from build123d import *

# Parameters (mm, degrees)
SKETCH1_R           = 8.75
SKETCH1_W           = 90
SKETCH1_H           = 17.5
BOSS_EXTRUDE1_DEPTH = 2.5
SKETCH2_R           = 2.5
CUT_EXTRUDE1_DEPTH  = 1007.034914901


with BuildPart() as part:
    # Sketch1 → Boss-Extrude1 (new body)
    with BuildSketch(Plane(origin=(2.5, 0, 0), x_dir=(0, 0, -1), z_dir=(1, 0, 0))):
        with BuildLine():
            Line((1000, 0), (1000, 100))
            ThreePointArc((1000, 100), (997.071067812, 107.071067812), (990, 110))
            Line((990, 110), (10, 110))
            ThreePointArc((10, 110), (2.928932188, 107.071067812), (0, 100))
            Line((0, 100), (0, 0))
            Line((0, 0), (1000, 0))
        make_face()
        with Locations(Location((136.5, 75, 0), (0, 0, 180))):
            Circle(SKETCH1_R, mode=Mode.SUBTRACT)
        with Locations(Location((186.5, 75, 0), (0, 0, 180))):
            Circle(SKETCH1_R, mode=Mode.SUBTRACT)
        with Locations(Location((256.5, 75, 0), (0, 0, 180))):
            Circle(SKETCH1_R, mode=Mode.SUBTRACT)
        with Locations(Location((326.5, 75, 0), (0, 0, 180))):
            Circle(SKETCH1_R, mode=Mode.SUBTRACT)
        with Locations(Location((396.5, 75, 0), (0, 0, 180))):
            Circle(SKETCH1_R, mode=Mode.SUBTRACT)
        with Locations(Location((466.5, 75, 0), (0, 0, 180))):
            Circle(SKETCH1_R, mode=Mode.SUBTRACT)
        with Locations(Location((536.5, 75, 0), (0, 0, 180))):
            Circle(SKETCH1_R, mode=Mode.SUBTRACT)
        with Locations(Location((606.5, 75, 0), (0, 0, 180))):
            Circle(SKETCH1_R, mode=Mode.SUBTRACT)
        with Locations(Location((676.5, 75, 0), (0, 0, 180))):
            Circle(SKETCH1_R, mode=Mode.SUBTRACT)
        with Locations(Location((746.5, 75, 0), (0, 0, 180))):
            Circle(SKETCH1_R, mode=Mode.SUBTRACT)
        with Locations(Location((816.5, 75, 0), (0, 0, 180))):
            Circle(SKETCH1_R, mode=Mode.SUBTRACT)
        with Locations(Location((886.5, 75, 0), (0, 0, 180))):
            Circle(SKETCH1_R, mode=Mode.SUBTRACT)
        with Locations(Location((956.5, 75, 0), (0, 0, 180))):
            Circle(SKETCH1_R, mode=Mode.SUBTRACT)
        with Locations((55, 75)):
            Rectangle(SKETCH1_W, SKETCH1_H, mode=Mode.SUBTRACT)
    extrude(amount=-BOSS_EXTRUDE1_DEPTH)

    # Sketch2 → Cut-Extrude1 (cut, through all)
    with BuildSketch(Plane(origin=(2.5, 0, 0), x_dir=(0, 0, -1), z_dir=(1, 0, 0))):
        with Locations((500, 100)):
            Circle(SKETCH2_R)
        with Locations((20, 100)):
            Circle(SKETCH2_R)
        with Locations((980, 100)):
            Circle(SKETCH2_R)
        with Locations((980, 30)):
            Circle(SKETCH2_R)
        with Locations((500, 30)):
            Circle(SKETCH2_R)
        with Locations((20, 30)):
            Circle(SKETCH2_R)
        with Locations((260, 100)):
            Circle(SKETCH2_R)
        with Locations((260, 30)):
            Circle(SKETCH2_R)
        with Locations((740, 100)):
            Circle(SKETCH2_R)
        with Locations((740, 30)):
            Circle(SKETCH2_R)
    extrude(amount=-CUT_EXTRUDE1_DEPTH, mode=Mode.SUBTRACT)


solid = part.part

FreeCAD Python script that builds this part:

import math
import FreeCAD as App
import Part
import Sketcher

V = App.Vector

doc = App.newDocument("Part")
body = doc.addObject("PartDesign::Body", "Body")

# Sketch on YZ plane
sketch1 = doc.addObject("Sketcher::SketchObject", "Sketch")
body.addObject(sketch1)
sketch1.AttachmentSupport = (doc.YZ_Plane, [""])
sketch1.MapMode = "FlatFace"
sketch1.AttachmentOffset = App.Placement(V(0, 0, 2.5), App.Rotation())
sketch1.addGeometry(Part.LineSegment(V(0, -1000, 0), V(100, -1000, 0)), False)
sketch1.addGeometry(Part.ArcOfCircle(Part.Circle(V(100, -990, 0), V(0, 0, 1), 10), math.radians(-90), math.radians(0)), False)
sketch1.addGeometry(Part.LineSegment(V(110, -990, 0), V(110, -10, 0)), False)
sketch1.addGeometry(Part.ArcOfCircle(Part.Circle(V(100, -10, 0), V(0, 0, 1), 10), math.radians(0), math.radians(90)), False)
sketch1.addGeometry(Part.LineSegment(V(100, 0, 0), V(0, 0, 0)), False)
sketch1.addGeometry(Part.LineSegment(V(0, 0, 0), V(0, -1000, 0)), False)
sketch1.addGeometry(Part.LineSegment(V(66, -100, 0), V(66, -10, 0)), False)
sketch1.addGeometry(Part.LineSegment(V(66, -10, 0), V(84, -10, 0)), False)
sketch1.addGeometry(Part.LineSegment(V(84, -10, 0), V(84, -100, 0)), False)
sketch1.addGeometry(Part.LineSegment(V(84, -100, 0), V(66, -100, 0)), False)
sketch1.addGeometry(Part.Circle(V(75, -136, 0), V(0, 0, 1), 9), False)
sketch1.addGeometry(Part.Circle(V(75, -186, 0), V(0, 0, 1), 9), False)
sketch1.addGeometry(Part.Circle(V(75, -256, 0), V(0, 0, 1), 9), False)
sketch1.addGeometry(Part.Circle(V(75, -326, 0), V(0, 0, 1), 9), False)
sketch1.addGeometry(Part.Circle(V(75, -396, 0), V(0, 0, 1), 9), False)
sketch1.addGeometry(Part.Circle(V(75, -466, 0), V(0, 0, 1), 9), False)
sketch1.addGeometry(Part.Circle(V(75, -536, 0), V(0, 0, 1), 9), False)
sketch1.addGeometry(Part.Circle(V(75, -606, 0), V(0, 0, 1), 9), False)
sketch1.addGeometry(Part.Circle(V(75, -676, 0), V(0, 0, 1), 9), False)
sketch1.addGeometry(Part.Circle(V(75, -746, 0), V(0, 0, 1), 9), False)
sketch1.addGeometry(Part.Circle(V(75, -816, 0), V(0, 0, 1), 9), False)
sketch1.addGeometry(Part.Circle(V(75, -886, 0), V(0, 0, 1), 9), False)
sketch1.addGeometry(Part.Circle(V(75, -956, 0), V(0, 0, 1), 9), False)
sketch1.addConstraint(Sketcher.Constraint("Tangent", 0, 2, 1, 1))
sketch1.addConstraint(Sketcher.Constraint("Tangent", 1, 2, 2, 1))
sketch1.addConstraint(Sketcher.Constraint("Tangent", 2, 2, 3, 1))
sketch1.addConstraint(Sketcher.Constraint("Tangent", 3, 2, 4, 1))
sketch1.addConstraint(Sketcher.Constraint("Coincident", 4, 2, 5, 1))
sketch1.addConstraint(Sketcher.Constraint("Coincident", 5, 2, 0, 1))
sketch1.addConstraint(Sketcher.Constraint("Coincident", 6, 2, 7, 1))
sketch1.addConstraint(Sketcher.Constraint("Coincident", 7, 2, 8, 1))
sketch1.addConstraint(Sketcher.Constraint("Coincident", 8, 2, 9, 1))
sketch1.addConstraint(Sketcher.Constraint("Coincident", 9, 2, 6, 1))
sketch1.addConstraint(Sketcher.Constraint("Horizontal", 0))
sketch1.addConstraint(Sketcher.Constraint("Vertical", 2))
sketch1.addConstraint(Sketcher.Constraint("Horizontal", 4))
sketch1.addConstraint(Sketcher.Constraint("Vertical", 5))
sketch1.addConstraint(Sketcher.Constraint("Vertical", 6))
sketch1.addConstraint(Sketcher.Constraint("Horizontal", 7))
sketch1.addConstraint(Sketcher.Constraint("Vertical", 8))
sketch1.addConstraint(Sketcher.Constraint("Horizontal", 9))
sketch1.addConstraint(Sketcher.Constraint("Coincident", 4, 2, -1, 1))
sketch1.addConstraint(Sketcher.Constraint("Equal", 1, 3))
sketch1.addConstraint(Sketcher.Constraint("Equal", 10, 11))
sketch1.addConstraint(Sketcher.Constraint("Equal", 11, 12))
sketch1.addConstraint(Sketcher.Constraint("Equal", 12, 13))
sketch1.addConstraint(Sketcher.Constraint("Equal", 13, 14))
sketch1.addConstraint(Sketcher.Constraint("Equal", 14, 15))
sketch1.addConstraint(Sketcher.Constraint("Equal", 15, 16))
sketch1.addConstraint(Sketcher.Constraint("Equal", 16, 17))
sketch1.addConstraint(Sketcher.Constraint("Equal", 17, 18))
sketch1.addConstraint(Sketcher.Constraint("Equal", 18, 19))
sketch1.addConstraint(Sketcher.Constraint("Equal", 19, 20))
sketch1.addConstraint(Sketcher.Constraint("Equal", 20, 21))
sketch1.addConstraint(Sketcher.Constraint("Equal", 21, 22))
sketch1.addConstraint(Sketcher.Constraint("Horizontal", 2, 2, 6, 2))
sketch1.addConstraint(Sketcher.Constraint("Vertical", 10, 3, 11, 3))
sketch1.addConstraint(Sketcher.Constraint("Vertical", 11, 3, 12, 3))
sketch1.addConstraint(Sketcher.Constraint("Vertical", 12, 3, 13, 3))
sketch1.addConstraint(Sketcher.Constraint("Vertical", 13, 3, 14, 3))
sketch1.addConstraint(Sketcher.Constraint("Vertical", 14, 3, 15, 3))
sketch1.addConstraint(Sketcher.Constraint("Vertical", 15, 3, 16, 3))
sketch1.addConstraint(Sketcher.Constraint("Vertical", 16, 3, 17, 3))
sketch1.addConstraint(Sketcher.Constraint("Vertical", 17, 3, 18, 3))
sketch1.addConstraint(Sketcher.Constraint("Vertical", 18, 3, 19, 3))
sketch1.addConstraint(Sketcher.Constraint("Vertical", 19, 3, 20, 3))
sketch1.addConstraint(Sketcher.Constraint("Vertical", 20, 3, 21, 3))
sketch1.addConstraint(Sketcher.Constraint("Vertical", 21, 3, 22, 3))
sketch1.addConstraint(Sketcher.Constraint("Radius", 1, 10.0))
sketch1.addConstraint(Sketcher.Constraint("Diameter", 10, 17.5))
sketch1.addConstraint(Sketcher.Constraint("DistanceX", 0, 1, 0, 2, 100.0))
sketch1.addConstraint(Sketcher.Constraint("DistanceY", 2, 1, 2, 2, 980.0))
sketch1.addConstraint(Sketcher.Constraint("DistanceY", 6, 1, 6, 2, 90.0))
sketch1.addConstraint(Sketcher.Constraint("DistanceX", 7, 1, 7, 2, 17.5))
sketch1.addConstraint(Sketcher.Constraint("DistanceX", -1, 1, 10, 3, 75.0))
sketch1.addConstraint(Sketcher.Constraint("DistanceY", 11, 3, 10, 3, 50.0))
sketch1.addConstraint(Sketcher.Constraint("DistanceY", 12, 3, 11, 3, 70.0))
sketch1.addConstraint(Sketcher.Constraint("DistanceY", 13, 3, 12, 3, 70.0))
sketch1.addConstraint(Sketcher.Constraint("DistanceY", 14, 3, 13, 3, 70.0))
sketch1.addConstraint(Sketcher.Constraint("DistanceY", 15, 3, 14, 3, 70.0))
sketch1.addConstraint(Sketcher.Constraint("DistanceY", 16, 3, 15, 3, 70.0))
sketch1.addConstraint(Sketcher.Constraint("DistanceY", 17, 3, 16, 3, 70.0))
sketch1.addConstraint(Sketcher.Constraint("DistanceY", 18, 3, 17, 3, 70.0))
sketch1.addConstraint(Sketcher.Constraint("DistanceY", 19, 3, 18, 3, 70.0))
sketch1.addConstraint(Sketcher.Constraint("DistanceY", 20, 3, 19, 3, 70.0))
sketch1.addConstraint(Sketcher.Constraint("DistanceY", 21, 3, 20, 3, 70.0))
sketch1.addConstraint(Sketcher.Constraint("DistanceY", 22, 3, 21, 3, 70.0))
sketch1.addConstraint(Sketcher.Constraint("DistanceY", 10, 3, -1, 1, 136.5))
sketch1.addConstraint(Sketcher.Constraint("DistanceX", -1, 1, 6, 2, 66.25))
pad1 = doc.addObject("PartDesign::Pad", "Pad")
body.addObject(pad1)
pad1.Profile = sketch1
pad1.Length = 2.5
pad1.Reversed = True

# Sketch on YZ plane
sketch2 = doc.addObject("Sketcher::SketchObject", "Sketch001")
body.addObject(sketch2)
sketch2.AttachmentSupport = (doc.YZ_Plane, [""])
sketch2.MapMode = "FlatFace"
sketch2.AttachmentOffset = App.Placement(V(0, 0, 2.5), App.Rotation())
sketch2.addGeometry(Part.Circle(V(100, -500, 0), V(0, 0, 1), 2.5), False)
sketch2.addGeometry(Part.Circle(V(100, -20, 0), V(0, 0, 1), 2.5), False)
sketch2.addGeometry(Part.Circle(V(100, -980, 0), V(0, 0, 1), 2.5), False)
sketch2.addGeometry(Part.Circle(V(30, -980, 0), V(0, 0, 1), 2.5), False)
sketch2.addGeometry(Part.Circle(V(30, -500, 0), V(0, 0, 1), 2.5), False)
sketch2.addGeometry(Part.Circle(V(30, -20, 0), V(0, 0, 1), 2.5), False)
sketch2.addGeometry(Part.Circle(V(100, -260, 0), V(0, 0, 1), 2.5), False)
sketch2.addGeometry(Part.Circle(V(30, -260, 0), V(0, 0, 1), 2.5), False)
sketch2.addGeometry(Part.Circle(V(100, -740, 0), V(0, 0, 1), 2.5), False)
sketch2.addGeometry(Part.Circle(V(30, -740, 0), V(0, 0, 1), 2.5), False)
sketch2.addConstraint(Sketcher.Constraint("Equal", 0, 1))
sketch2.addConstraint(Sketcher.Constraint("Equal", 1, 2))
sketch2.addConstraint(Sketcher.Constraint("Equal", 2, 3))
sketch2.addConstraint(Sketcher.Constraint("Equal", 3, 4))
sketch2.addConstraint(Sketcher.Constraint("Equal", 4, 5))
sketch2.addConstraint(Sketcher.Constraint("Equal", 5, 6))
sketch2.addConstraint(Sketcher.Constraint("Equal", 6, 7))
sketch2.addConstraint(Sketcher.Constraint("Equal", 7, 8))
sketch2.addConstraint(Sketcher.Constraint("Equal", 8, 9))
sketch2.addConstraint(Sketcher.Constraint("Horizontal", 2, 3, 3, 3))
sketch2.addConstraint(Sketcher.Constraint("Horizontal", 0, 3, 4, 3))
sketch2.addConstraint(Sketcher.Constraint("Horizontal", 1, 3, 5, 3))
sketch2.addConstraint(Sketcher.Constraint("Horizontal", 6, 3, 7, 3))
sketch2.addConstraint(Sketcher.Constraint("Horizontal", 8, 3, 9, 3))
sketch2.addConstraint(Sketcher.Constraint("Vertical", 0, 3, 1, 3))
sketch2.addConstraint(Sketcher.Constraint("Vertical", 1, 3, 2, 3))
sketch2.addConstraint(Sketcher.Constraint("Vertical", 3, 3, 4, 3))
sketch2.addConstraint(Sketcher.Constraint("Vertical", 4, 3, 5, 3))
sketch2.addConstraint(Sketcher.Constraint("Vertical", 2, 3, 6, 3))
sketch2.addConstraint(Sketcher.Constraint("Vertical", 5, 3, 7, 3))
sketch2.addConstraint(Sketcher.Constraint("Vertical", 6, 3, 8, 3))
sketch2.addConstraint(Sketcher.Constraint("Vertical", 7, 3, 9, 3))
sketch2.addConstraint(Sketcher.Constraint("Diameter", 0, 5.0))
sketch2.addConstraint(Sketcher.Constraint("DistanceX", -1, 1, 0, 3, 100.0))
sketch2.addConstraint(Sketcher.Constraint("DistanceY", 0, 3, -1, 1, 500.0))
sketch2.addConstraint(Sketcher.Constraint("DistanceY", 1, 3, -1, 1, 20.0))
sketch2.addConstraint(Sketcher.Constraint("DistanceY", 2, 3, -1, 1, 980.0))
sketch2.addConstraint(Sketcher.Constraint("DistanceX", -1, 1, 3, 3, 30.0))
sketch2.addConstraint(Sketcher.Constraint("DistanceY", 6, 3, -1, 1, 260.0))
sketch2.addConstraint(Sketcher.Constraint("DistanceY", 8, 3, -1, 1, 740.0))
pocket1 = doc.addObject("PartDesign::Pocket", "Pocket")
body.addObject(pocket1)
pocket1.Profile = sketch2
pocket1.Type = "ThroughAll"

doc.recompute()
